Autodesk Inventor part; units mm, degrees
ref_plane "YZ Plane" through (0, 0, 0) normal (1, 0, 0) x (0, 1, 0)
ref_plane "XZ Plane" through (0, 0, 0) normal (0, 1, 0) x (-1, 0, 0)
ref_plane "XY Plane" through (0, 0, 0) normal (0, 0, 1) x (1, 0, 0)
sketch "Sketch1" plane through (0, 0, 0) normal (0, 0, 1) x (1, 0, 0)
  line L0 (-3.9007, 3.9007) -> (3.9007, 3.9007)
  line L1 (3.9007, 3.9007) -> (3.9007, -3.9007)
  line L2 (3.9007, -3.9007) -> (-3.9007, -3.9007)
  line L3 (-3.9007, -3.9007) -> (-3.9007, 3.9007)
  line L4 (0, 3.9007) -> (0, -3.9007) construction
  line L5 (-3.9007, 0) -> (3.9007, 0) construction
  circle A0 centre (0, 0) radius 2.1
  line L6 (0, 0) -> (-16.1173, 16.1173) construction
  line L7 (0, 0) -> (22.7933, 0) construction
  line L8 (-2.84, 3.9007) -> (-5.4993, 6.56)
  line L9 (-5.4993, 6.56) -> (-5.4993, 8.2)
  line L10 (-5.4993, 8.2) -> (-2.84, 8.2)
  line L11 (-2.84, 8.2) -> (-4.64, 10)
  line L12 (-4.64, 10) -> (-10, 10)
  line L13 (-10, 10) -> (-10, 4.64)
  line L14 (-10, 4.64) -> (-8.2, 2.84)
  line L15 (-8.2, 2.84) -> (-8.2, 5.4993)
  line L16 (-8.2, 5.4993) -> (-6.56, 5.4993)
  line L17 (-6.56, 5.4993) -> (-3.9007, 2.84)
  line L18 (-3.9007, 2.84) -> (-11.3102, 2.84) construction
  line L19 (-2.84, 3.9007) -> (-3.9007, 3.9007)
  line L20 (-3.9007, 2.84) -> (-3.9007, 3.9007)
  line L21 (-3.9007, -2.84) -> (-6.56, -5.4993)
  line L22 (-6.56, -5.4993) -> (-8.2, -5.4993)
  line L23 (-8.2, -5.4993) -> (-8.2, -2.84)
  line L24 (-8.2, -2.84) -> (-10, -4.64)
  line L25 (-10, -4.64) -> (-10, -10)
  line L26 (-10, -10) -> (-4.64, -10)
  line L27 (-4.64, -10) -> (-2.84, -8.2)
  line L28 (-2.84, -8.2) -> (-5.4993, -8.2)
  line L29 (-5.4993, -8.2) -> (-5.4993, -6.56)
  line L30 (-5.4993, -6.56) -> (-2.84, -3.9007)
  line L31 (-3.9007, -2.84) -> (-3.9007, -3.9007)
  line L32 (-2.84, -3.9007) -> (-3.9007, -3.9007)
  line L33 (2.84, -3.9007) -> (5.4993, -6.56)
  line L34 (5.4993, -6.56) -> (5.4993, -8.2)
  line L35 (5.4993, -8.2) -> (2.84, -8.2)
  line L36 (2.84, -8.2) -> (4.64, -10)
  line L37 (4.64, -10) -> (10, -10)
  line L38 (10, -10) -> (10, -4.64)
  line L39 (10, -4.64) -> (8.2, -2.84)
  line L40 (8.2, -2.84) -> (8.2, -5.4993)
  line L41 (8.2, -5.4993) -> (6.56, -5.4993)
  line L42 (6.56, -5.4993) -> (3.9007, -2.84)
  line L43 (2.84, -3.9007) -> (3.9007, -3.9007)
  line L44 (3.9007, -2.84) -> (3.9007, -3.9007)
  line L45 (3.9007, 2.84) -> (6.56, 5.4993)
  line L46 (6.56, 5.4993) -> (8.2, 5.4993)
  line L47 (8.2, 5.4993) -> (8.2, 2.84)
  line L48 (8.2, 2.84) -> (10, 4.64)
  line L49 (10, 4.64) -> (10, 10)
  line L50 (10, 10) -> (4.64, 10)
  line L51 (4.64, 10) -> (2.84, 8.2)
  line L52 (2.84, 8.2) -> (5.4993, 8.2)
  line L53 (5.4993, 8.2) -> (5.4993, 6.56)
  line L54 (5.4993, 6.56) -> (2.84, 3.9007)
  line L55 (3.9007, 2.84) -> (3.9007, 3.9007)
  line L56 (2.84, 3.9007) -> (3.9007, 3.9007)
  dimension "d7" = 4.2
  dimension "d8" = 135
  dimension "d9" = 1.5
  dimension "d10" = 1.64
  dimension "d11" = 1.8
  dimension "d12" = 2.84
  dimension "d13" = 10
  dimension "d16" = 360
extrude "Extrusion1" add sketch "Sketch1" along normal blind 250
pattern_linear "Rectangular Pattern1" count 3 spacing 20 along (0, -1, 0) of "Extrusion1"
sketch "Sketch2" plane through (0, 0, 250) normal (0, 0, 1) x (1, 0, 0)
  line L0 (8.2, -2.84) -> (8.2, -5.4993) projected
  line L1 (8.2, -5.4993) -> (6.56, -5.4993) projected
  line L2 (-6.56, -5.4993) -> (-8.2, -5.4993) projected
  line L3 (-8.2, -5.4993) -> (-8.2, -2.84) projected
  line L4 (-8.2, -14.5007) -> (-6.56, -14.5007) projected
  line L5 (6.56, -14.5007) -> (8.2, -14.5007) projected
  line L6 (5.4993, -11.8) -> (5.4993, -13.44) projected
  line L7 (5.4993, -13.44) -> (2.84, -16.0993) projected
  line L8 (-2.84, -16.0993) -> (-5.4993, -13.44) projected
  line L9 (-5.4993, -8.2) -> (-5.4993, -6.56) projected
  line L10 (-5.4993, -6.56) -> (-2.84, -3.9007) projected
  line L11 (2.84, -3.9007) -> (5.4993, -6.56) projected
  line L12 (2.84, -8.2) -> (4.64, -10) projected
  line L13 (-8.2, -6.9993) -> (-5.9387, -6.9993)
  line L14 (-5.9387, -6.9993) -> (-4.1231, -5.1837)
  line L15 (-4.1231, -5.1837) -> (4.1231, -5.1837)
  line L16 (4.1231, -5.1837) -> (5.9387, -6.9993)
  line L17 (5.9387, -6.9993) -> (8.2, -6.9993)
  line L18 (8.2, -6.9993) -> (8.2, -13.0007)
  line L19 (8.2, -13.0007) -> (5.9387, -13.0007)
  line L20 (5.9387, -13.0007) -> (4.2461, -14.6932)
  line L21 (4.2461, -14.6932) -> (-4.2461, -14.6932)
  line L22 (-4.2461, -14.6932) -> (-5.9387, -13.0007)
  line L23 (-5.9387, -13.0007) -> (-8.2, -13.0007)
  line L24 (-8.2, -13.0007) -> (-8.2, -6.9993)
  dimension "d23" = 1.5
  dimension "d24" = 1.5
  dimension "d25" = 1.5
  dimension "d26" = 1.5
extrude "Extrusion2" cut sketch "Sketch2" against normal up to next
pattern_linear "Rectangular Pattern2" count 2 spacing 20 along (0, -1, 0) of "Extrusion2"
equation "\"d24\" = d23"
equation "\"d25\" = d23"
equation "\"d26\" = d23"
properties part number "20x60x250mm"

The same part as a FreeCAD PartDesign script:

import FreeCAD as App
import Part
import Sketcher

V = App.Vector

doc = App.newDocument("Part")
body = doc.addObject("PartDesign::Body", "Body")

# Sketch on XY plane
sketch1 = body.newObject("Sketcher::SketchObject", "Sketch")
sketch1.AttachmentSupport = (doc.getObject("XY_Plane"), [""])
sketch1.MapMode = "FlatFace"
sketch1.addGeometry([
    Part.LineSegment(V(-6.6, 5.5, 0), V(-3.9, 2.8, 0)),  # 0
    Part.LineSegment(V(-3.9, 2.8, 0), V(-3.9, -2.8, 0)),  # 1
    Part.LineSegment(V(-3.9, -2.8, 0), V(-6.6, -5.5, 0)),  # 2
    Part.LineSegment(V(-6.6, -5.5, 0), V(-8.2, -5.5, 0)),  # 3
    Part.LineSegment(V(-8.2, -5.5, 0), V(-8.2, -2.8, 0)),  # 4
    Part.LineSegment(V(-8.2, -2.8, 0), V(-10, -4.6, 0)),  # 5
    Part.LineSegment(V(-10, -4.6, 0), V(-10, -10, 0)),  # 6
    Part.LineSegment(V(-10, -10, 0), V(-4.6, -10, 0)),  # 7
    Part.LineSegment(V(-4.6, -10, 0), V(-2.8, -8.2, 0)),  # 8
    Part.LineSegment(V(-2.8, -8.2, 0), V(-5.5, -8.2, 0)),  # 9
    Part.LineSegment(V(-5.5, -8.2, 0), V(-5.5, -6.6, 0)),  # 10
    Part.LineSegment(V(-5.5, -6.6, 0), V(-2.8, -3.9, 0)),  # 11
    Part.LineSegment(V(-2.8, -3.9, 0), V(2.8, -3.9, 0)),  # 12
    Part.LineSegment(V(2.8, -3.9, 0), V(5.5, -6.6, 0)),  # 13
    Part.LineSegment(V(5.5, -6.6, 0), V(5.5, -8.2, 0)),  # 14
    Part.LineSegment(V(5.5, -8.2, 0), V(2.8, -8.2, 0)),  # 15
    Part.LineSegment(V(2.8, -8.2, 0), V(4.6, -10, 0)),  # 16
    Part.LineSegment(V(4.6, -10, 0), V(10, -10, 0)),  # 17
    Part.LineSegment(V(10, -10, 0), V(10, -4.6, 0)),  # 18
    Part.LineSegment(V(10, -4.6, 0), V(8.2, -2.8, 0)),  # 19
    Part.LineSegment(V(8.2, -2.8, 0), V(8.2, -5.5, 0)),  # 20
    Part.LineSegment(V(8.2, -5.5, 0), V(6.6, -5.5, 0)),  # 21
    Part.LineSegment(V(6.6, -5.5, 0), V(3.9, -2.8, 0)),  # 22
    Part.LineSegment(V(3.9, -2.8, 0), V(3.9, 2.8, 0)),  # 23
    Part.LineSegment(V(3.9, 2.8, 0), V(6.6, 5.5, 0)),  # 24
    Part.LineSegment(V(6.6, 5.5, 0), V(8.2, 5.5, 0)),  # 25
    Part.LineSegment(V(8.2, 5.5, 0), V(8.2, 2.8, 0)),  # 26
    Part.LineSegment(V(8.2, 2.8, 0), V(10, 4.6, 0)),  # 27
    Part.LineSegment(V(10, 4.6, 0), V(10, 10, 0)),  # 28
    Part.LineSegment(V(10, 10, 0), V(4.6, 10, 0)),  # 29
    Part.LineSegment(V(4.6, 10, 0), V(2.8, 8.2, 0)),  # 30
    Part.LineSegment(V(2.8, 8.2, 0), V(5.5, 8.2, 0)),  # 31
    Part.LineSegment(V(5.5, 8.2, 0), V(5.5, 6.6, 0)),  # 32
    Part.LineSegment(V(5.5, 6.6, 0), V(2.8, 3.9, 0)),  # 33
    Part.LineSegment(V(2.8, 3.9, 0), V(-2.8, 3.9, 0)),  # 34
    Part.LineSegment(V(-2.8, 3.9, 0), V(-5.5, 6.6, 0)),  # 35
    Part.LineSegment(V(-5.5, 6.6, 0), V(-5.5, 8.2, 0)),  # 36
    Part.LineSegment(V(-5.5, 8.2, 0), V(-2.8, 8.2, 0)),  # 37
    Part.LineSegment(V(-2.8, 8.2, 0), V(-4.6, 10, 0)),  # 38
    Part.LineSegment(V(-4.6, 10, 0), V(-10, 10, 0)),  # 39
    Part.LineSegment(V(-10, 10, 0), V(-10, 4.6, 0)),  # 40
    Part.LineSegment(V(-10, 4.6, 0), V(-8.2, 2.8, 0)),  # 41
    Part.LineSegment(V(-8.2, 2.8, 0), V(-8.2, 5.5, 0)),  # 42
    Part.LineSegment(V(-8.2, 5.5, 0), V(-6.6, 5.5, 0)),  # 43
    Part.Circle(V(0, 0, 0), V(0, 0, 1), 2.1),  # 44
], False)
sketch1.addConstraint([
    Sketcher.Constraint("Coincident", 0, 2, 1, 1),
    Sketcher.Constraint("Coincident", 1, 2, 2, 1),
    Sketcher.Constraint("Coincident", 2, 2, 3, 1),
    Sketcher.Constraint("Coincident", 3, 2, 4, 1),
    Sketcher.Constraint("Coincident", 4, 2, 5, 1),
    Sketcher.Constraint("Coincident", 5, 2, 6, 1),
    Sketcher.Constraint("Coincident", 6, 2, 7, 1),
    Sketcher.Constraint("Coincident", 7, 2, 8, 1),
    Sketcher.Constraint("Coincident", 8, 2, 9, 1),
    Sketcher.Constraint("Coincident", 9, 2, 10, 1),
    Sketcher.Constraint("Coincident", 10, 2, 11, 1),
    Sketcher.Constraint("Coincident", 11, 2, 12, 1),
    Sketcher.Constraint("Coincident", 12, 2, 13, 1),
    Sketcher.Constraint("Coincident", 13, 2, 14, 1),
    Sketcher.Constraint("Coincident", 14, 2, 15, 1),
    Sketcher.Constraint("Coincident", 15, 2, 16, 1),
    Sketcher.Constraint("Coincident", 16, 2, 17, 1),
    Sketcher.Constraint("Coincident", 17, 2, 18, 1),
    Sketcher.Constraint("Coincident", 18, 2, 19, 1),
    Sketcher.Constraint("Coincident", 19, 2, 20, 1),
    Sketcher.Constraint("Coincident", 20, 2, 21, 1),
    Sketcher.Constraint("Coincident", 21, 2, 22, 1),
    Sketcher.Constraint("Coincident", 22, 2, 23, 1),
    Sketcher.Constraint("Coincident", 23, 2, 24, 1),
    Sketcher.Constraint("Coincident", 24, 2, 25, 1),
    Sketcher.Constraint("Coincident", 25, 2, 26, 1),
    Sketcher.Constraint("Coincident", 26, 2, 27, 1),
    Sketcher.Constraint("Coincident", 27, 2, 28, 1),
    Sketcher.Constraint("Coincident", 28, 2, 29, 1),
    Sketcher.Constraint("Coincident", 29, 2, 30, 1),
    Sketcher.Constraint("Coincident", 30, 2, 31, 1),
    Sketcher.Constraint("Coincident", 31, 2, 32, 1),
    Sketcher.Constraint("Coincident", 32, 2, 33, 1),
    Sketcher.Constraint("Coincident", 33, 2, 34, 1),
    Sketcher.Constraint("Coincident", 34, 2, 35, 1),
    Sketcher.Constraint("Coincident", 35, 2, 36, 1),
    Sketcher.Constraint("Coincident", 36, 2, 37, 1),
    Sketcher.Constraint("Coincident", 37, 2, 38, 1),
    Sketcher.Constraint("Coincident", 38, 2, 39, 1),
    Sketcher.Constraint("Coincident", 39, 2, 40, 1),
    Sketcher.Constraint("Coincident", 40, 2, 41, 1),
    Sketcher.Constraint("Coincident", 41, 2, 42, 1),
    Sketcher.Constraint("Coincident", 42, 2, 43, 1),
    Sketcher.Constraint("Coincident", 43, 2, 0, 1),
    Sketcher.Constraint("Vertical", 1),
    Sketcher.Constraint("Horizontal", 3),
    Sketcher.Constraint("Vertical", 4),
    Sketcher.Constraint("Vertical", 6),
    Sketcher.Constraint("Horizontal", 7),
    Sketcher.Constraint("Horizontal", 9),
    Sketcher.Constraint("Vertical", 10),
    Sketcher.Constraint("Horizontal", 12),
    Sketcher.Constraint("Vertical", 14),
    Sketcher.Constraint("Horizontal", 15),
    Sketcher.Constraint("Horizontal", 17),
    Sketcher.Constraint("Vertical", 18),
    Sketcher.Constraint("Vertical", 20),
    Sketcher.Constraint("Horizontal", 21),
    Sketcher.Constraint("Vertical", 23),
    Sketcher.Constraint("Horizontal", 25),
    Sketcher.Constraint("Vertical", 26),
    Sketcher.Constraint("Vertical", 28),
    Sketcher.Constraint("Horizontal", 29),
    Sketcher.Constraint("Horizontal", 31),
    Sketcher.Constraint("Vertical", 32),
    Sketcher.Constraint("Horizontal", 34),
    Sketcher.Constraint("Vertical", 36),
    Sketcher.Constraint("Horizontal", 37),
    Sketcher.Constraint("Horizontal", 39),
    Sketcher.Constraint("Vertical", 40),
    Sketcher.Constraint("Vertical", 42),
    Sketcher.Constraint("Horizontal", 43),
    Sketcher.Constraint("Coincident", 44, 3, -1, 1),
    Sketcher.Constraint("Symmetric", 0, 2, 22, 2, -1, 1),
    Sketcher.Constraint("Symmetric", 2, 2, 24, 2, -1, 1),
    Sketcher.Constraint("Symmetric", 4, 2, 26, 2, -1, 1),
    Sketcher.Constraint("Symmetric", 5, 2, 27, 2, -1, 1),
    Sketcher.Constraint("Symmetric", 7, 2, 29, 2, -1, 1),
    Sketcher.Constraint("Symmetric", 8, 2, 30, 2, -1, 1),
    Sketcher.Constraint("Symmetric", 10, 2, 32, 2, -1, 1),
    Sketcher.Constraint("Symmetric", 11, 2, 33, 2, -1, 1),
    Sketcher.Constraint("Symmetric", 13, 2, 35, 2, -1, 1),
    Sketcher.Constraint("Symmetric", 15, 2, 37, 2, -1, 1),
    Sketcher.Constraint("Symmetric", 16, 2, 38, 2, -1, 1),
    Sketcher.Constraint("Symmetric", 18, 2, 40, 2, -1, 1),
    Sketcher.Constraint("Symmetric", 19, 2, 41, 2, -1, 1),
    Sketcher.Constraint("Symmetric", 21, 2, 43, 2, -1, 1),
    Sketcher.Constraint("Symmetric", 10, 2, 13, 2, -2),
    Sketcher.Constraint("Symmetric", 8, 2, 15, 2, -2),
    Sketcher.Constraint("Symmetric", 7, 2, 16, 2, -2),
    Sketcher.Constraint("Symmetric", 5, 2, 18, 2, -2),
    Sketcher.Constraint("Symmetric", 4, 2, 19, 2, -2),
    Sketcher.Constraint("Symmetric", 2, 2, 21, 2, -2),
    Sketcher.Constraint("Perpendicular", 0, 2),
    Sketcher.Constraint("Parallel", 2, 5),
    Sketcher.Constraint("Parallel", 5, 8),
    Sketcher.Constraint("Parallel", 8, 11),
    Sketcher.Constraint("Perpendicular", 11, 13),
    Sketcher.Constraint("Parallel", 13, 16),
    Sketcher.Constraint("Perpendicular", 22, 24),
    Sketcher.Constraint("Perpendicular", 33, 35),
    Sketcher.Constraint("Horizontal", 1, 2, 4, 2),
    Sketcher.Constraint("Vertical", 8, 2, 11, 2),
    Sketcher.Constraint("Equal", 34, 1),
    Sketcher.Constraint("Equal", 37, 4),
    Sketcher.Constraint("Equal", 39, 6),
    Sketcher.Constraint("Equal", 43, 10),
    Sketcher.Constraint("Equal", 5, 8),
    Sketcher.Constraint("Diameter", 44, 4.2),
    Sketcher.Constraint("DistanceX", 5, 2, -1, 1, 10.0),
    Sketcher.Constraint("DistanceX", 3, 2, 3, 1, 1.64),
    Sketcher.Constraint("DistanceX", 5, 2, 3, 2, 1.8),
    Sketcher.Constraint("DistanceY", -1, 1, 0, 2, 2.84),
    Sketcher.Constraint("DistanceX", 9, 2, 9, 1, 2.6593),
])
pad1 = body.newObject("PartDesign::Pad", "Pad")
pad1.Profile = sketch1
pad1.Length = 250
doc.recompute()

linearpattern = body.newObject("PartDesign::LinearPattern", "LinearPattern")
linearpattern.Originals = [pad1]
linearpattern.Direction = (doc.getObject("Y_Axis"), [""])
linearpattern.Mode = "offset"
linearpattern.Offset = 20
linearpattern.Occurrences = 3
linearpattern.Reversed = True
body.Tip = linearpattern

# Sketch on XY plane
sketch2 = body.newObject("Sketcher::SketchObject", "Sketch001")
sketch2.AttachmentSupport = (doc.getObject("XY_Plane"), [""])
sketch2.MapMode = "FlatFace"
sketch2.AttachmentOffset = App.Placement(V(0, 0, 250), App.Rotation())
sketch2.addGeometry([
    Part.LineSegment(V(4.2, -14.7, 0), V(5.5, -13.4, 0)),  # 0
    Part.LineSegment(V(5.5, -13.4, 0), V(5.9, -13, 0)),  # 1
    Part.LineSegment(V(5.9, -13, 0), V(8.2, -13, 0)),  # 2
    Part.LineSegment(V(8.2, -13, 0), V(8.2, -7, 0)),  # 3
    Part.LineSegment(V(8.2, -7, 0), V(5.9, -7, 0)),  # 4
    Part.LineSegment(V(5.9, -7, 0), V(5.5, -6.6, 0)),  # 5
    Part.LineSegment(V(5.5, -6.6, 0), V(4.1, -5.2, 0)),  # 6
    Part.LineSegment(V(4.1, -5.2, 0), V(-4.1, -5.2, 0)),  # 7
    Part.LineSegment(V(-4.1, -5.2, 0), V(-5.5, -6.6, 0)),  # 8
    Part.LineSegment(V(-5.5, -6.6, 0), V(-5.9, -7, 0)),  # 9
    Part.LineSegment(V(-5.9, -7, 0), V(-8.2, -7, 0)),  # 10
    Part.LineSegment(V(-8.2, -7, 0), V(-8.2, -13, 0)),  # 11
    Part.LineSegment(V(-8.2, -13, 0), V(-5.9, -13, 0)),  # 12
    Part.LineSegment(V(-5.9, -13, 0), V(-5.5, -13.4, 0)),  # 13
    Part.LineSegment(V(-5.5, -13.4, 0), V(-4.2, -14.7, 0)),  # 14
    Part.LineSegment(V(-4.2, -14.7, 0), V(4.2, -14.7, 0)),  # 15
], False)
sketch2.addConstraint([
    Sketcher.Constraint("Coincident", 0, 2, 1, 1),
    Sketcher.Constraint("Coincident", 1, 2, 2, 1),
    Sketcher.Constraint("Coincident", 2, 2, 3, 1),
    Sketcher.Constraint("Coincident", 3, 2, 4, 1),
    Sketcher.Constraint("Coincident", 4, 2, 5, 1),
    Sketcher.Constraint("Coincident", 5, 2, 6, 1),
    Sketcher.Constraint("Coincident", 6, 2, 7, 1),
    Sketcher.Constraint("Coincident", 7, 2, 8, 1),
    Sketcher.Constraint("Coincident", 8, 2, 9, 1),
    Sketcher.Constraint("Coincident", 9, 2, 10, 1),
    Sketcher.Constraint("Coincident", 10, 2, 11, 1),
    Sketcher.Constraint("Coincident", 11, 2, 12, 1),
    Sketcher.Constraint("Coincident", 12, 2, 13, 1),
    Sketcher.Constraint("Coincident", 13, 2, 14, 1),
    Sketcher.Constraint("Coincident", 14, 2, 15, 1),
    Sketcher.Constraint("Coincident", 15, 2, 0, 1),
    Sketcher.Constraint("Horizontal", 2),
    Sketcher.Constraint("Vertical", 3),
    Sketcher.Constraint("Horizontal", 4),
    Sketcher.Constraint("Horizontal", 7),
    Sketcher.Constraint("Horizontal", 10),
    Sketcher.Constraint("Vertical", 11),
    Sketcher.Constraint("Horizontal", 12),
    Sketcher.Constraint("Horizontal", 15),
    Sketcher.Constraint("Symmetric", 5, 2, 8, 2, -2),
    Sketcher.Constraint("Symmetric", 4, 2, 9, 2, -2),
    Sketcher.Constraint("Symmetric", 2, 2, 11, 2, -2),
    Sketcher.Constraint("Symmetric", 0, 2, 13, 2, -2),
    Sketcher.Constraint("Parallel", 0, 1),
    Sketcher.Constraint("Perpendicular", 1, 5),
    Sketcher.Constraint("Parallel", 5, 6),
    Sketcher.Constraint("Perpendicular", 6, 8),
    Sketcher.Constraint("Parallel", 8, 9),
    Sketcher.Constraint("Perpendicular", 9, 13),
    Sketcher.Constraint("Parallel", 13, 14),
    Sketcher.Constraint("Vertical", 1, 2, 4, 2),
    Sketcher.Constraint("Vertical", 0, 2, 5, 2),
    Sketcher.Constraint("DistanceX", -1, 1, 2, 2, 8.2),
    Sketcher.Constraint("DistanceY", 0, 2, -1, 1, 13.44),
    Sketcher.Constraint("DistanceY", 5, 2, -1, 1, 6.56),
    Sketcher.Constraint("DistanceX", 2, 1, 2, 2, 2.2613),
    Sketcher.Constraint("DistanceX", 7, 2, 7, 1, 8.2462),
    Sketcher.Constraint("DistanceX", 15, 1, 15, 2, 8.4922),
    Sketcher.Constraint("DistanceY", 3, 1, 3, 2, 6.0014),
])
pocket1 = body.newObject("PartDesign::Pocket", "Pocket")
pocket1.Profile = sketch2
pocket1.Length = 250
doc.recompute()

linearpattern2 = body.newObject("PartDesign::LinearPattern", "LinearPattern001")
linearpattern2.Originals = [pocket1]
linearpattern2.Direction = (doc.getObject("Y_Axis"), [""])
linearpattern2.Mode = "offset"
linearpattern2.Offset = 20
linearpattern2.Occurrences = 2
linearpattern2.Reversed = True
body.Tip = linearpattern2

doc.recompute()
